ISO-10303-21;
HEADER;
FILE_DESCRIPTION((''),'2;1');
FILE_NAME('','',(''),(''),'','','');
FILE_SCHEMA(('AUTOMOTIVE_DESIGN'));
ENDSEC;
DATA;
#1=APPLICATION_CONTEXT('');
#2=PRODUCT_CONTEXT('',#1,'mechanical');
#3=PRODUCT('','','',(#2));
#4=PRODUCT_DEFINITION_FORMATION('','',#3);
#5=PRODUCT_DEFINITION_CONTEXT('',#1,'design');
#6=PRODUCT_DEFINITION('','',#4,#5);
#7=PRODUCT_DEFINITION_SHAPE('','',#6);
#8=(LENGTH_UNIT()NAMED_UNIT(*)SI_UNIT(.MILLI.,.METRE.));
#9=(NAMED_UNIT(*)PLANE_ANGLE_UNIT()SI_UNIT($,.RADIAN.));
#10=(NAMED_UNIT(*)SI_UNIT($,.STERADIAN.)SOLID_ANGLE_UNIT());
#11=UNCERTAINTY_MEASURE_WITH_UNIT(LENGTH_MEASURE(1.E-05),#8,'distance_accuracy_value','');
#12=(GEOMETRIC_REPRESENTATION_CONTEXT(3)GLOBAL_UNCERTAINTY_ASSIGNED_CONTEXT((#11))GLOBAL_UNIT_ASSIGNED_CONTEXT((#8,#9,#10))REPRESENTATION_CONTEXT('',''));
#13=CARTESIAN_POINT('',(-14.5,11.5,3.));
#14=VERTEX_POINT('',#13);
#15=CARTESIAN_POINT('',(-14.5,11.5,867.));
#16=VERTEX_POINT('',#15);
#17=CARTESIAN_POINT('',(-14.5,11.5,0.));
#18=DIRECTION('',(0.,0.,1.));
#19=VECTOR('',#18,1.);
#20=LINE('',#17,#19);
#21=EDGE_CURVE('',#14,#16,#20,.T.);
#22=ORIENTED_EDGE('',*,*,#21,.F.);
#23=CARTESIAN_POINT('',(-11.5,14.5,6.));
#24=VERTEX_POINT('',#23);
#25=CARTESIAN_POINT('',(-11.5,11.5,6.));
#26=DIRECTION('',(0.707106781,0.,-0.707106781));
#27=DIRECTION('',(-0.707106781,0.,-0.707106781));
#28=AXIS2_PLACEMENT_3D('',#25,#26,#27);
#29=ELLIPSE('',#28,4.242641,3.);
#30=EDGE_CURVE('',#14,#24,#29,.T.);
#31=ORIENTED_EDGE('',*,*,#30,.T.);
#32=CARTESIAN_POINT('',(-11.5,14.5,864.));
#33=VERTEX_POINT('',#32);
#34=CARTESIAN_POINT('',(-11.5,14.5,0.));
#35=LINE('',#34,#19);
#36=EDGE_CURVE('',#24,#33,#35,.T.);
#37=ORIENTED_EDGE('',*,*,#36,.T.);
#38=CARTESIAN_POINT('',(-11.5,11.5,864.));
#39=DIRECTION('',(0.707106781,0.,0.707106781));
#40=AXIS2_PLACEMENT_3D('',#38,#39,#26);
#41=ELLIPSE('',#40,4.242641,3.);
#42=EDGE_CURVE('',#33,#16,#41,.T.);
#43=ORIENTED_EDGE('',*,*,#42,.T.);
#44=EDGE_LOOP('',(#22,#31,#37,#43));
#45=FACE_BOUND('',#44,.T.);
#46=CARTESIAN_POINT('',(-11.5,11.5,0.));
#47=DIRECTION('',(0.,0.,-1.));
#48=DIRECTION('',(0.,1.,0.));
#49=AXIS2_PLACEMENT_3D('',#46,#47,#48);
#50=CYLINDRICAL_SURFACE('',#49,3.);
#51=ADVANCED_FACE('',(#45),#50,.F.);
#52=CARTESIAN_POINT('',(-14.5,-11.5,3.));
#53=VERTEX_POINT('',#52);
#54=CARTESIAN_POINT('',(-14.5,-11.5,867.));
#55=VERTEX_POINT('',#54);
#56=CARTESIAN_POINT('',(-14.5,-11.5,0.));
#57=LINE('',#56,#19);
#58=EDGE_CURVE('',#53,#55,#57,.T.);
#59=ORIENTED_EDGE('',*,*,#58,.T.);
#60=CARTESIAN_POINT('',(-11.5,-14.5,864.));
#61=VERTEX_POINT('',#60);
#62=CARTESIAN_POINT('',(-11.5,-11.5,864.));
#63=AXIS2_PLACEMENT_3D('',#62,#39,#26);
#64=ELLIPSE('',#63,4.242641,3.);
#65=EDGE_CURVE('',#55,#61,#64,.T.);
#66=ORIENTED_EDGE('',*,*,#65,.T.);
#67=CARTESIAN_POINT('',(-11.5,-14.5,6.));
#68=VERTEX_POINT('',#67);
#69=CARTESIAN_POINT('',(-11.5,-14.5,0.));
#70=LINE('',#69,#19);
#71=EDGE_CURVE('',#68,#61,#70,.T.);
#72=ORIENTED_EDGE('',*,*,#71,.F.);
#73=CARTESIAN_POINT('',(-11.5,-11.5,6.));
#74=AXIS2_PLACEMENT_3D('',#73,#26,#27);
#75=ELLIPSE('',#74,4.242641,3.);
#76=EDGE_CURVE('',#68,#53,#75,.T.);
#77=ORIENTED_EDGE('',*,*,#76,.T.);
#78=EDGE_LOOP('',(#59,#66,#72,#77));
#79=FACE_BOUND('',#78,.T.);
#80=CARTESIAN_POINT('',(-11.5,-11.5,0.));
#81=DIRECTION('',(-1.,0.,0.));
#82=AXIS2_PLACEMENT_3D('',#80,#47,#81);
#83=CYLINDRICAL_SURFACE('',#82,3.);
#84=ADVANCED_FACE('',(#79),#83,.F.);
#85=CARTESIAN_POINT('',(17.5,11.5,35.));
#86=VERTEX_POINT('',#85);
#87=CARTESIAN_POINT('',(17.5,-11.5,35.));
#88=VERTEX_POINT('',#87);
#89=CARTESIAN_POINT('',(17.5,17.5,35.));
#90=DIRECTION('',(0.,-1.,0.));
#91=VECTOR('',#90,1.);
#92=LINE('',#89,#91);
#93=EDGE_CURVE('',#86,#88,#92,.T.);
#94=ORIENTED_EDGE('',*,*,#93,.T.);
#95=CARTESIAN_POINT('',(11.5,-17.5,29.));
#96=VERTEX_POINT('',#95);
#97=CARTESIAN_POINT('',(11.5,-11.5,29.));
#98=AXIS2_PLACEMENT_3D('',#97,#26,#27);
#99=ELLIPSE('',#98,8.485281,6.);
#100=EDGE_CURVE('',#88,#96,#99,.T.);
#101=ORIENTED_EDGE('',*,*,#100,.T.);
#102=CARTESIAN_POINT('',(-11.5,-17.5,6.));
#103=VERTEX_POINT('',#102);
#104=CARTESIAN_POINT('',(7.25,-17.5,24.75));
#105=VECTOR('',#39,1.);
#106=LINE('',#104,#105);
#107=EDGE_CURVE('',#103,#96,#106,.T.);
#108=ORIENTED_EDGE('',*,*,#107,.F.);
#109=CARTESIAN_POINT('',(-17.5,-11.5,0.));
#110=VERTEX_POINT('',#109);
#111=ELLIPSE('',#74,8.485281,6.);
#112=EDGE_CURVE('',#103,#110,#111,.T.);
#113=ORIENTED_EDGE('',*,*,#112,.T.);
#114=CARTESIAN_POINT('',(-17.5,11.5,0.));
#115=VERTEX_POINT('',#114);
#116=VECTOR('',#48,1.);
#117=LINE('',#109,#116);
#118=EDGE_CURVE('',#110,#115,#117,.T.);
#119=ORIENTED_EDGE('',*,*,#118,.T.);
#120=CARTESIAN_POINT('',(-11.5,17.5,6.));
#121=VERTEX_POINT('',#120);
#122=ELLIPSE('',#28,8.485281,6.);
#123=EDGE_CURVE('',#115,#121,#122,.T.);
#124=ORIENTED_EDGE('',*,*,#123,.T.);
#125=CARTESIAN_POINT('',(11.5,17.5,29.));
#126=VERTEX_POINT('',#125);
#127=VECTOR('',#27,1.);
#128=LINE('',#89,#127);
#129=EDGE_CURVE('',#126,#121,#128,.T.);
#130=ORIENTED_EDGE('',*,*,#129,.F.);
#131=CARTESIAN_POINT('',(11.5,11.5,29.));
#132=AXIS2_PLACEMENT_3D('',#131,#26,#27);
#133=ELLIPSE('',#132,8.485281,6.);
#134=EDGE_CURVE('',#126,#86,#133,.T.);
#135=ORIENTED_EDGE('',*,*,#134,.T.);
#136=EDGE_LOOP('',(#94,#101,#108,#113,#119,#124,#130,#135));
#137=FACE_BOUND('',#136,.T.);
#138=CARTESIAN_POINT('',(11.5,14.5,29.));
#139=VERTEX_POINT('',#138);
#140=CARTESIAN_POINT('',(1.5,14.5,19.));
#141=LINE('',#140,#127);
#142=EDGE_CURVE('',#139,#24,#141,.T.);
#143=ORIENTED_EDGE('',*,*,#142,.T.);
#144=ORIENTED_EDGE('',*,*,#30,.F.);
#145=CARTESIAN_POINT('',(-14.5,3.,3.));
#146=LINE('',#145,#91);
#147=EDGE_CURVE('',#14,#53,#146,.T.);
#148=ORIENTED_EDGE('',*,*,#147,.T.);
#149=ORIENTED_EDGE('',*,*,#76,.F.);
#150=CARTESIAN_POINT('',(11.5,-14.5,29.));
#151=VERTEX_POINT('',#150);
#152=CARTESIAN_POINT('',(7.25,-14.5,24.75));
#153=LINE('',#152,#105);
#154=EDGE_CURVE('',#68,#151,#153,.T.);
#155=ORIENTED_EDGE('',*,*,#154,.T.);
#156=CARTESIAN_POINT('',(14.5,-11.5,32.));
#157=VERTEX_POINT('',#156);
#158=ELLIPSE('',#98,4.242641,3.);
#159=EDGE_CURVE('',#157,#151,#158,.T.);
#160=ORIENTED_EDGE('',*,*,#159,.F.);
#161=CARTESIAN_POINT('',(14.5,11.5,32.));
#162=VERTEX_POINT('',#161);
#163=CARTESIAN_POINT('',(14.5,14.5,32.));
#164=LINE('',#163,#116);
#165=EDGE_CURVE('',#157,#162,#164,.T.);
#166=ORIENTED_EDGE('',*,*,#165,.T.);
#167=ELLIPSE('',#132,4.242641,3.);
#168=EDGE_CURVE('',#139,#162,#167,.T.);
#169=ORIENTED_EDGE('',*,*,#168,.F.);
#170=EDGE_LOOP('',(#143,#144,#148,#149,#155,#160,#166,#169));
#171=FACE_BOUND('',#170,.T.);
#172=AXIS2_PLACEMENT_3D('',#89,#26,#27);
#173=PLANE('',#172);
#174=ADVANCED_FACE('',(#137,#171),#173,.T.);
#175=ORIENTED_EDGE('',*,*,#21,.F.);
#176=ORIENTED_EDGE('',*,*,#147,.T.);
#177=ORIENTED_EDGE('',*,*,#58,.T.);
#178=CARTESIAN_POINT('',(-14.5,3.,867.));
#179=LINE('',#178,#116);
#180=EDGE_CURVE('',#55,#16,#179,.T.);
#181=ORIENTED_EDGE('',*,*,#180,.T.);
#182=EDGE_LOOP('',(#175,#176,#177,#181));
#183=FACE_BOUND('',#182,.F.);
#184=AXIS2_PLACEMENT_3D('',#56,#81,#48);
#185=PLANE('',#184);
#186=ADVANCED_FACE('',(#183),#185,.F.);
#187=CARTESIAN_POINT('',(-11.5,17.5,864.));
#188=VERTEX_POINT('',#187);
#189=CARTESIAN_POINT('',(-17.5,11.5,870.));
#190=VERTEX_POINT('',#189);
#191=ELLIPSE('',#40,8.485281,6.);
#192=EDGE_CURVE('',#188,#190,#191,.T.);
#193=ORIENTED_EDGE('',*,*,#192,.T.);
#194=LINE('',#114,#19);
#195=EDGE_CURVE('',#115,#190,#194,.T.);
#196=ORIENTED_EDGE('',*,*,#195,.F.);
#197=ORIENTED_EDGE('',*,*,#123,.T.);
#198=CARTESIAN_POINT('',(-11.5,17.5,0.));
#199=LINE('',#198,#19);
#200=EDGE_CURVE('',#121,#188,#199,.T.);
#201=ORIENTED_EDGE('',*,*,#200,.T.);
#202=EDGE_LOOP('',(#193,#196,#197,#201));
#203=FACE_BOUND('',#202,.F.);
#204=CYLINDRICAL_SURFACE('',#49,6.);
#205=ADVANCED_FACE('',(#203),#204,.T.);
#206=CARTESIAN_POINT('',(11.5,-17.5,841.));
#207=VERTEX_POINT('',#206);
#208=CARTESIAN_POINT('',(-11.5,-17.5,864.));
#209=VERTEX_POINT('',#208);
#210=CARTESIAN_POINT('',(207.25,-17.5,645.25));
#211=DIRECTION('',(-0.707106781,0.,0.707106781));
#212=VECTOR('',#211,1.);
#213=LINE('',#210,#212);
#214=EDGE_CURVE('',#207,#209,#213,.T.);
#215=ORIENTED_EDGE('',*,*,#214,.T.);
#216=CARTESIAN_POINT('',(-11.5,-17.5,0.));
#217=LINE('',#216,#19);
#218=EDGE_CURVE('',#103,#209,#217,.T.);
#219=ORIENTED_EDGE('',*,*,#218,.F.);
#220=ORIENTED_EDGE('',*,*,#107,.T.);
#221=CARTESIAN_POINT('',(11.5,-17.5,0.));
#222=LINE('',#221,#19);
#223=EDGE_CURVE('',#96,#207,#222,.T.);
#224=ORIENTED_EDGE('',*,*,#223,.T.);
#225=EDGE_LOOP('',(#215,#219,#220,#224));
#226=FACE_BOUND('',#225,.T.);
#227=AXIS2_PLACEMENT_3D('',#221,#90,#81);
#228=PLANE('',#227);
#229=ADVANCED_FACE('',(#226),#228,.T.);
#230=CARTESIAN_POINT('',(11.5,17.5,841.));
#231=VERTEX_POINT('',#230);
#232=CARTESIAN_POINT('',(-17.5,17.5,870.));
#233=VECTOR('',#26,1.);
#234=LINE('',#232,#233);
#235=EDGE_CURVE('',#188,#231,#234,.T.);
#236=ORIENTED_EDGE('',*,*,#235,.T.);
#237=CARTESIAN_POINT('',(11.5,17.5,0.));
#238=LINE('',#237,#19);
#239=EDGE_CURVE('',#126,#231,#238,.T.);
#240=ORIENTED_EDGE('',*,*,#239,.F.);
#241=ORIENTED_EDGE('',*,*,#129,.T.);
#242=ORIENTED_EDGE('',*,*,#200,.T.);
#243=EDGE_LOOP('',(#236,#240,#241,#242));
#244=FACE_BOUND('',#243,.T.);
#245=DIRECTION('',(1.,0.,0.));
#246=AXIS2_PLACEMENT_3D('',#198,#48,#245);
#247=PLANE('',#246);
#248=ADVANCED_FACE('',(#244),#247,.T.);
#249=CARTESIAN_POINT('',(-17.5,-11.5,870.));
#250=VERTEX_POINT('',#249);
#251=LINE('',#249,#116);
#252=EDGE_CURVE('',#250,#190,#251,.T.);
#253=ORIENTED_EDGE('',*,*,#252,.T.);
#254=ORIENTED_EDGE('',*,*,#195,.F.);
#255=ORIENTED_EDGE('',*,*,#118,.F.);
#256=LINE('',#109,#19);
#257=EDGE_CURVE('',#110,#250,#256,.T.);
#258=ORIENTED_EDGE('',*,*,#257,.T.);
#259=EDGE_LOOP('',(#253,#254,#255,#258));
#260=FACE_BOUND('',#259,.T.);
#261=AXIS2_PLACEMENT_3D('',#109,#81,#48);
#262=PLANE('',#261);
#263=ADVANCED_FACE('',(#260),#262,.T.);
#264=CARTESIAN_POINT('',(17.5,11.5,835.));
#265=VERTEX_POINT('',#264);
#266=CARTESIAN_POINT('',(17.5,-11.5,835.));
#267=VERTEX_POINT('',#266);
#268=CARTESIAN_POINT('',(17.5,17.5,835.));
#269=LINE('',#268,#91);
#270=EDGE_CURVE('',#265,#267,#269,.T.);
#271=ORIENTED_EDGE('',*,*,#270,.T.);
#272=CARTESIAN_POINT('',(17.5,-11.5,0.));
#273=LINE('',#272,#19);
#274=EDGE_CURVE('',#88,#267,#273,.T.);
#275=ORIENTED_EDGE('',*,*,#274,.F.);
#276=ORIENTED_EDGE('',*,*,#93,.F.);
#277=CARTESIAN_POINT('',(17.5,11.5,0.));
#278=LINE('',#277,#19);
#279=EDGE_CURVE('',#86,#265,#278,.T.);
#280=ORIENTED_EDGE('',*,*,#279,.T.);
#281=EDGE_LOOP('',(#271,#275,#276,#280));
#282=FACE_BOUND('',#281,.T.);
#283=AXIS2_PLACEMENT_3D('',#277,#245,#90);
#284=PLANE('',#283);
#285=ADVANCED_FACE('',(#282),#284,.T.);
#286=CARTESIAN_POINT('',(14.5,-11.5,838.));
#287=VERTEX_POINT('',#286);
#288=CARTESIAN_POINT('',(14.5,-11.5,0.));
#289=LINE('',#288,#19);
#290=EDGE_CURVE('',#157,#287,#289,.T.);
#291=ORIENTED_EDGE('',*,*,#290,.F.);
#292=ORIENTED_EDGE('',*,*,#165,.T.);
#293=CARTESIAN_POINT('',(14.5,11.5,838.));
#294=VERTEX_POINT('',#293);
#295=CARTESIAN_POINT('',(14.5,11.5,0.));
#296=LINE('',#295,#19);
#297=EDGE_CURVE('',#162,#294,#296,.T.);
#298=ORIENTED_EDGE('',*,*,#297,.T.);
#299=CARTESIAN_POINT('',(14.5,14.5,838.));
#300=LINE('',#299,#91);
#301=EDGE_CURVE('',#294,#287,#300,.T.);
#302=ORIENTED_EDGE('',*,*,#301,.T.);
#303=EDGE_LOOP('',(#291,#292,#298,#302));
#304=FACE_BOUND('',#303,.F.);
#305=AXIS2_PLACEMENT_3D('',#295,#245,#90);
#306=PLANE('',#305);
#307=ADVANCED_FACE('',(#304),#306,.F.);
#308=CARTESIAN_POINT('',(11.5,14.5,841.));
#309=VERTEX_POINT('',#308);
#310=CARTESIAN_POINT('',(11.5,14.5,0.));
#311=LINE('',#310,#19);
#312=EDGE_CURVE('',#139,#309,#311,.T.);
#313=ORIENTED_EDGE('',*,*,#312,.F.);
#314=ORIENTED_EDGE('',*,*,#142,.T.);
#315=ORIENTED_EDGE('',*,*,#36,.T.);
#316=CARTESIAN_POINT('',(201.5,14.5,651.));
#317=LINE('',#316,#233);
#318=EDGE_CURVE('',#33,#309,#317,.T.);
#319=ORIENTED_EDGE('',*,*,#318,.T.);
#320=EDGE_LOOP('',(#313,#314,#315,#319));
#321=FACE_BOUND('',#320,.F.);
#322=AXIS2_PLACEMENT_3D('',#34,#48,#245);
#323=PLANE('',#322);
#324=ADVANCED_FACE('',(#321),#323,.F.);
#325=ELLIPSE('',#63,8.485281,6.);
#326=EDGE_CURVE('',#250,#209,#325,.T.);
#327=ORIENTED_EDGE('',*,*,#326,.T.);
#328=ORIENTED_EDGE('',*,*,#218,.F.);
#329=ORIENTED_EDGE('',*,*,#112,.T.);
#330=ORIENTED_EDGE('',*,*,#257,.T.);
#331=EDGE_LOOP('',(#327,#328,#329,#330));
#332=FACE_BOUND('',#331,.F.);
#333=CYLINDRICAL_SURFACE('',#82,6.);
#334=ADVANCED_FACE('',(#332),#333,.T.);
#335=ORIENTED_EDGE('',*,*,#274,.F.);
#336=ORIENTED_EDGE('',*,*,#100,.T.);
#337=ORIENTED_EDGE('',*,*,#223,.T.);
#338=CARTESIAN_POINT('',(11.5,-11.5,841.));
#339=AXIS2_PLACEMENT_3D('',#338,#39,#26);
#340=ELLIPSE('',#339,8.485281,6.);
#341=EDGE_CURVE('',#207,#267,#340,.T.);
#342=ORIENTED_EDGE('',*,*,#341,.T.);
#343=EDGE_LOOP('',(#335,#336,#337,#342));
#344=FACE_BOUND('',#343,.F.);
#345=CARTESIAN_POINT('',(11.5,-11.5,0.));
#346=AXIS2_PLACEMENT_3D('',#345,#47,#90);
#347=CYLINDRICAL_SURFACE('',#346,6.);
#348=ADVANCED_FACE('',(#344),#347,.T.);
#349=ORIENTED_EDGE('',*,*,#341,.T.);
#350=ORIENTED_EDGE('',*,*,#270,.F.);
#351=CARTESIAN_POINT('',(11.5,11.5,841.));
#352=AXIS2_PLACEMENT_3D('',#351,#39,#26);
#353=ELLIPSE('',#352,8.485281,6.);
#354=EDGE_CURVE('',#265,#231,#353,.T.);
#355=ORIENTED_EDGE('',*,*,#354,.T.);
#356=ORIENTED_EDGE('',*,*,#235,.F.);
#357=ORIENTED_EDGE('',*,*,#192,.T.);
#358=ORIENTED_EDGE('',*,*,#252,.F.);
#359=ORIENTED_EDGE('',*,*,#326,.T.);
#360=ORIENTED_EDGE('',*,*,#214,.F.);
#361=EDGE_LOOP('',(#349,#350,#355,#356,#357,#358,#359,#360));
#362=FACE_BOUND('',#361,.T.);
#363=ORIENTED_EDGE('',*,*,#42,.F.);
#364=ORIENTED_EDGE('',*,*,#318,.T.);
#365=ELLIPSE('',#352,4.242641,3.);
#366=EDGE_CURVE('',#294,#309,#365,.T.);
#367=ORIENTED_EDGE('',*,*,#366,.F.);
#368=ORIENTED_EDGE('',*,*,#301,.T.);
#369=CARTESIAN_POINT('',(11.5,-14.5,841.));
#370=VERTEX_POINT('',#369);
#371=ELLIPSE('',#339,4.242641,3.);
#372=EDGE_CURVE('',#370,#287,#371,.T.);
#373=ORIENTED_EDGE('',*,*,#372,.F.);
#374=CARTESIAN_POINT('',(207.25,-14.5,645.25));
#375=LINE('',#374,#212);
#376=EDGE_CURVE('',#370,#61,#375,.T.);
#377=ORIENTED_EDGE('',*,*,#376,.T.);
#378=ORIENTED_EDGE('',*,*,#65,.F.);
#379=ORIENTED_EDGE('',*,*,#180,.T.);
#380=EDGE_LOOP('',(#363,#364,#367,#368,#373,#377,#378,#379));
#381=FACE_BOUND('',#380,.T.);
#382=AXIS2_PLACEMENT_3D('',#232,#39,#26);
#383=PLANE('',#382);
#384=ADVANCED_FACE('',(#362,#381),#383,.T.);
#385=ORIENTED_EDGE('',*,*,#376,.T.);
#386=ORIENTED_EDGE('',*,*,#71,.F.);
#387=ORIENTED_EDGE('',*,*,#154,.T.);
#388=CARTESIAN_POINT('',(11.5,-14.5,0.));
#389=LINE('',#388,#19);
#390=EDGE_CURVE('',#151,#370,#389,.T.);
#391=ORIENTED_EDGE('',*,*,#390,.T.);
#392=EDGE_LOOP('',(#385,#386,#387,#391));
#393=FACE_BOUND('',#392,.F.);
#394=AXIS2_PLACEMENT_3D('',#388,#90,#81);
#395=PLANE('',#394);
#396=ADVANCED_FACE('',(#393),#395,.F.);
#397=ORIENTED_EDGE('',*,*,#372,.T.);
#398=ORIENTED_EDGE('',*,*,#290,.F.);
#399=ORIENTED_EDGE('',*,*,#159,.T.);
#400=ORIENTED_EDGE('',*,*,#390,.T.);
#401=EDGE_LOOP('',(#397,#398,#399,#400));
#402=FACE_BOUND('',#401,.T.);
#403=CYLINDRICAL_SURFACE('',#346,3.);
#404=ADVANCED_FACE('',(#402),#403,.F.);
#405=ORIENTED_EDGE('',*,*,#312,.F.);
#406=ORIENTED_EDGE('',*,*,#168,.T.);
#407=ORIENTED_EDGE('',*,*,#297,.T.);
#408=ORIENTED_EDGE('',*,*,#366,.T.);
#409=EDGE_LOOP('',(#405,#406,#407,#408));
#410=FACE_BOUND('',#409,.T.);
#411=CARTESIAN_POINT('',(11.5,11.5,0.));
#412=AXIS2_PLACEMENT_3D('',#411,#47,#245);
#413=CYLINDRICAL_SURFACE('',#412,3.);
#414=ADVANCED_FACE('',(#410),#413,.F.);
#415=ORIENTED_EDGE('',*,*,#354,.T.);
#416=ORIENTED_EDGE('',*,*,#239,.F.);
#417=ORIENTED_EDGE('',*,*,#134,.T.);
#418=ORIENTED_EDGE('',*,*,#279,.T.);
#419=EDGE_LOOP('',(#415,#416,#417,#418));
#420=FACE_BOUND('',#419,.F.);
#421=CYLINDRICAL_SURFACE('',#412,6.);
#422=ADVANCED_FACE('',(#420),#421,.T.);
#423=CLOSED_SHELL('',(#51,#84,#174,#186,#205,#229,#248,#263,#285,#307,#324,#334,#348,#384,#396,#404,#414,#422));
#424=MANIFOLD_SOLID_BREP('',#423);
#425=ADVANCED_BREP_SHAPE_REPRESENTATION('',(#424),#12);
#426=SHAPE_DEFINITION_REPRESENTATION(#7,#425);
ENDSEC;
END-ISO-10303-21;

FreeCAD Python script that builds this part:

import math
import FreeCAD as App
import Part
import Sketcher
Q = App.Units.Quantity


def add_polygon(sketch, points):
    """Adds a closed chain of lines whose ends are joined by coincident constraints."""
    first, n = sketch.GeometryCount, len(points)
    for a, b in zip(points, points[1:] + points[:1]):
        sketch.addGeometry(Part.LineSegment(App.Vector(*a, 0), App.Vector(*b, 0)), False)
    for i in range(n):
        sketch.addConstraint(Sketcher.Constraint("Coincident", first + i, 2, first + (i + 1) % n, 1))

doc = App.newDocument("Part")
body = doc.addObject("PartDesign::Body", "Body")

# Sketch on XY plane
sketch1 = body.newObject("Sketcher::SketchObject", "Sketch")
sketch1.AttachmentSupport = (doc.getObject("XY_Plane"), [""])
sketch1.MapMode = "FlatFace"
sketch1.addGeometry([
    Part.LineSegment(App.Vector(11.5, 17.5, 0), App.Vector(-11.5, 17.5, 0)),  # 0
    Part.ArcOfCircle(Part.Circle(App.Vector(-11.5, 11.5, 0), App.Vector(0, 0, 1), 6), math.radians(90), math.radians(180)),  # 1
    Part.LineSegment(App.Vector(-17.5, 11.5, 0), App.Vector(-17.5, -11.5, 0)),  # 2
    Part.ArcOfCircle(Part.Circle(App.Vector(-11.5, -11.5, 0), App.Vector(0, 0, 1), 6), math.radians(180), math.radians(270)),  # 3
    Part.LineSegment(App.Vector(-11.5, -17.5, 0), App.Vector(11.5, -17.5, 0)),  # 4
    Part.ArcOfCircle(Part.Circle(App.Vector(11.5, -11.5, 0), App.Vector(0, 0, 1), 6), math.radians(-90), math.radians(0)),  # 5
    Part.LineSegment(App.Vector(17.5, -11.5, 0), App.Vector(17.5, 11.5, 0)),  # 6
    Part.ArcOfCircle(Part.Circle(App.Vector(11.5, 11.5, 0), App.Vector(0, 0, 1), 6), math.radians(0), math.radians(90)),  # 7
    Part.ArcOfCircle(Part.Circle(App.Vector(-11.5, 11.5, 0), App.Vector(0, 0, 1), 3), math.radians(90), math.radians(180)),  # 8
    Part.LineSegment(App.Vector(-11.5, 14.5, 0), App.Vector(11.5, 14.5, 0)),  # 9
    Part.ArcOfCircle(Part.Circle(App.Vector(11.5, 11.5, 0), App.Vector(0, 0, 1), 3), math.radians(0), math.radians(90)),  # 10
    Part.LineSegment(App.Vector(14.5, 11.5, 0), App.Vector(14.5, -11.5, 0)),  # 11
    Part.ArcOfCircle(Part.Circle(App.Vector(11.5, -11.5, 0), App.Vector(0, 0, 1), 3), math.radians(-90), math.radians(0)),  # 12
    Part.LineSegment(App.Vector(11.5, -14.5, 0), App.Vector(-11.5, -14.5, 0)),  # 13
    Part.ArcOfCircle(Part.Circle(App.Vector(-11.5, -11.5, 0), App.Vector(0, 0, 1), 3), math.radians(180), math.radians(270)),  # 14
    Part.LineSegment(App.Vector(-14.5, -11.5, 0), App.Vector(-14.5, 11.5, 0)),  # 15
], False)
sketch1.addConstraint([
    Sketcher.Constraint("Tangent", 0, 2, 1, 1),
    Sketcher.Constraint("Tangent", 1, 2, 2, 1),
    Sketcher.Constraint("Tangent", 2, 2, 3, 1),
    Sketcher.Constraint("Tangent", 3, 2, 4, 1),
    Sketcher.Constraint("Tangent", 4, 2, 5, 1),
    Sketcher.Constraint("Tangent", 5, 2, 6, 1),
    Sketcher.Constraint("Tangent", 6, 2, 7, 1),
    Sketcher.Constraint("Tangent", 7, 2, 0, 1),
    Sketcher.Constraint("Tangent", 8, 1, 9, 1),
    Sketcher.Constraint("Tangent", 9, 2, 10, 2),
    Sketcher.Constraint("Tangent", 10, 1, 11, 1),
    Sketcher.Constraint("Tangent", 11, 2, 12, 2),
    Sketcher.Constraint("Tangent", 12, 1, 13, 1),
    Sketcher.Constraint("Tangent", 13, 2, 14, 2),
    Sketcher.Constraint("Tangent", 14, 1, 15, 1),
    Sketcher.Constraint("Tangent", 15, 2, 8, 2),
    Sketcher.Constraint("Horizontal", 0),
    Sketcher.Constraint("Vertical", 2),
    Sketcher.Constraint("Horizontal", 4),
    Sketcher.Constraint("Vertical", 6),
    Sketcher.Constraint("Horizontal", 9),
    Sketcher.Constraint("Vertical", 11),
    Sketcher.Constraint("Horizontal", 13),
    Sketcher.Constraint("Vertical", 15),
    Sketcher.Constraint("Coincident", 8, 3, 1, 3),
    Sketcher.Constraint("Coincident", 10, 3, 7, 3),
    Sketcher.Constraint("Coincident", 12, 3, 5, 3),
    Sketcher.Constraint("Equal", 1, 3),
    Sketcher.Constraint("Equal", 3, 5),
    Sketcher.Constraint("Equal", 5, 7),
    Sketcher.Constraint("Equal", 12, 14),
    Sketcher.Constraint("Symmetric", 1, 3, 5, 3, -1, 1),
    Sketcher.Constraint("Equal", 13, 2),
    Sketcher.Constraint("Radius", 1, Q("6 mm")),
    Sketcher.Constraint("Radius", 8, Q("3 mm")),
    Sketcher.Constraint("DistanceY", -1, 1, 0, 2, Q("17.5 mm")),
])
pad1 = body.newObject("PartDesign::Pad", "Pad")
pad1.Profile = sketch1
pad1.Length = 870

# Sketch on XZ plane
sketch2 = body.newObject("Sketcher::SketchObject", "Sketch001")
sketch2.AttachmentSupport = (doc.getObject("XZ_Plane"), [""])
sketch2.MapMode = "FlatFace"
sketch2.AttachmentOffset = App.Placement(App.Vector(0, 0, -17.5), App.Rotation())
add_polygon(sketch2, [(18, 0), (-18, 0), (18, 35)])  # lines 0-2
add_polygon(sketch2, [(-18, 870), (18, 870), (18, 835)])  # lines 3-5
sketch2.addConstraint([
    Sketcher.Constraint("Horizontal", 0),
    Sketcher.Constraint("Vertical", 2),
    Sketcher.Constraint("Horizontal", 3),
    Sketcher.Constraint("Vertical", 4),
    Sketcher.Constraint("Symmetric", 0, 2, 2, 2, -1, 1),
    Sketcher.Constraint("Perpendicular", 1, 5),
    Sketcher.Constraint("Vertical", 2, 2, 3, 2),
    Sketcher.Constraint("Vertical", 0, 2, 5, 2),
    Sketcher.Constraint("Equal", 3, 2),
    Sketcher.Constraint("DistanceX", 0, 2, 0, 1, Q("35 mm")),
    Sketcher.Constraint("DistanceY", -1, 1, 3, 2, Q("870 mm")),
])
pocket1 = body.newObject("PartDesign::Pocket", "Pocket")
pocket1.Profile = sketch2
pocket1.Type = "ThroughAll"
pocket1.Reversed = True

doc.recompute()
